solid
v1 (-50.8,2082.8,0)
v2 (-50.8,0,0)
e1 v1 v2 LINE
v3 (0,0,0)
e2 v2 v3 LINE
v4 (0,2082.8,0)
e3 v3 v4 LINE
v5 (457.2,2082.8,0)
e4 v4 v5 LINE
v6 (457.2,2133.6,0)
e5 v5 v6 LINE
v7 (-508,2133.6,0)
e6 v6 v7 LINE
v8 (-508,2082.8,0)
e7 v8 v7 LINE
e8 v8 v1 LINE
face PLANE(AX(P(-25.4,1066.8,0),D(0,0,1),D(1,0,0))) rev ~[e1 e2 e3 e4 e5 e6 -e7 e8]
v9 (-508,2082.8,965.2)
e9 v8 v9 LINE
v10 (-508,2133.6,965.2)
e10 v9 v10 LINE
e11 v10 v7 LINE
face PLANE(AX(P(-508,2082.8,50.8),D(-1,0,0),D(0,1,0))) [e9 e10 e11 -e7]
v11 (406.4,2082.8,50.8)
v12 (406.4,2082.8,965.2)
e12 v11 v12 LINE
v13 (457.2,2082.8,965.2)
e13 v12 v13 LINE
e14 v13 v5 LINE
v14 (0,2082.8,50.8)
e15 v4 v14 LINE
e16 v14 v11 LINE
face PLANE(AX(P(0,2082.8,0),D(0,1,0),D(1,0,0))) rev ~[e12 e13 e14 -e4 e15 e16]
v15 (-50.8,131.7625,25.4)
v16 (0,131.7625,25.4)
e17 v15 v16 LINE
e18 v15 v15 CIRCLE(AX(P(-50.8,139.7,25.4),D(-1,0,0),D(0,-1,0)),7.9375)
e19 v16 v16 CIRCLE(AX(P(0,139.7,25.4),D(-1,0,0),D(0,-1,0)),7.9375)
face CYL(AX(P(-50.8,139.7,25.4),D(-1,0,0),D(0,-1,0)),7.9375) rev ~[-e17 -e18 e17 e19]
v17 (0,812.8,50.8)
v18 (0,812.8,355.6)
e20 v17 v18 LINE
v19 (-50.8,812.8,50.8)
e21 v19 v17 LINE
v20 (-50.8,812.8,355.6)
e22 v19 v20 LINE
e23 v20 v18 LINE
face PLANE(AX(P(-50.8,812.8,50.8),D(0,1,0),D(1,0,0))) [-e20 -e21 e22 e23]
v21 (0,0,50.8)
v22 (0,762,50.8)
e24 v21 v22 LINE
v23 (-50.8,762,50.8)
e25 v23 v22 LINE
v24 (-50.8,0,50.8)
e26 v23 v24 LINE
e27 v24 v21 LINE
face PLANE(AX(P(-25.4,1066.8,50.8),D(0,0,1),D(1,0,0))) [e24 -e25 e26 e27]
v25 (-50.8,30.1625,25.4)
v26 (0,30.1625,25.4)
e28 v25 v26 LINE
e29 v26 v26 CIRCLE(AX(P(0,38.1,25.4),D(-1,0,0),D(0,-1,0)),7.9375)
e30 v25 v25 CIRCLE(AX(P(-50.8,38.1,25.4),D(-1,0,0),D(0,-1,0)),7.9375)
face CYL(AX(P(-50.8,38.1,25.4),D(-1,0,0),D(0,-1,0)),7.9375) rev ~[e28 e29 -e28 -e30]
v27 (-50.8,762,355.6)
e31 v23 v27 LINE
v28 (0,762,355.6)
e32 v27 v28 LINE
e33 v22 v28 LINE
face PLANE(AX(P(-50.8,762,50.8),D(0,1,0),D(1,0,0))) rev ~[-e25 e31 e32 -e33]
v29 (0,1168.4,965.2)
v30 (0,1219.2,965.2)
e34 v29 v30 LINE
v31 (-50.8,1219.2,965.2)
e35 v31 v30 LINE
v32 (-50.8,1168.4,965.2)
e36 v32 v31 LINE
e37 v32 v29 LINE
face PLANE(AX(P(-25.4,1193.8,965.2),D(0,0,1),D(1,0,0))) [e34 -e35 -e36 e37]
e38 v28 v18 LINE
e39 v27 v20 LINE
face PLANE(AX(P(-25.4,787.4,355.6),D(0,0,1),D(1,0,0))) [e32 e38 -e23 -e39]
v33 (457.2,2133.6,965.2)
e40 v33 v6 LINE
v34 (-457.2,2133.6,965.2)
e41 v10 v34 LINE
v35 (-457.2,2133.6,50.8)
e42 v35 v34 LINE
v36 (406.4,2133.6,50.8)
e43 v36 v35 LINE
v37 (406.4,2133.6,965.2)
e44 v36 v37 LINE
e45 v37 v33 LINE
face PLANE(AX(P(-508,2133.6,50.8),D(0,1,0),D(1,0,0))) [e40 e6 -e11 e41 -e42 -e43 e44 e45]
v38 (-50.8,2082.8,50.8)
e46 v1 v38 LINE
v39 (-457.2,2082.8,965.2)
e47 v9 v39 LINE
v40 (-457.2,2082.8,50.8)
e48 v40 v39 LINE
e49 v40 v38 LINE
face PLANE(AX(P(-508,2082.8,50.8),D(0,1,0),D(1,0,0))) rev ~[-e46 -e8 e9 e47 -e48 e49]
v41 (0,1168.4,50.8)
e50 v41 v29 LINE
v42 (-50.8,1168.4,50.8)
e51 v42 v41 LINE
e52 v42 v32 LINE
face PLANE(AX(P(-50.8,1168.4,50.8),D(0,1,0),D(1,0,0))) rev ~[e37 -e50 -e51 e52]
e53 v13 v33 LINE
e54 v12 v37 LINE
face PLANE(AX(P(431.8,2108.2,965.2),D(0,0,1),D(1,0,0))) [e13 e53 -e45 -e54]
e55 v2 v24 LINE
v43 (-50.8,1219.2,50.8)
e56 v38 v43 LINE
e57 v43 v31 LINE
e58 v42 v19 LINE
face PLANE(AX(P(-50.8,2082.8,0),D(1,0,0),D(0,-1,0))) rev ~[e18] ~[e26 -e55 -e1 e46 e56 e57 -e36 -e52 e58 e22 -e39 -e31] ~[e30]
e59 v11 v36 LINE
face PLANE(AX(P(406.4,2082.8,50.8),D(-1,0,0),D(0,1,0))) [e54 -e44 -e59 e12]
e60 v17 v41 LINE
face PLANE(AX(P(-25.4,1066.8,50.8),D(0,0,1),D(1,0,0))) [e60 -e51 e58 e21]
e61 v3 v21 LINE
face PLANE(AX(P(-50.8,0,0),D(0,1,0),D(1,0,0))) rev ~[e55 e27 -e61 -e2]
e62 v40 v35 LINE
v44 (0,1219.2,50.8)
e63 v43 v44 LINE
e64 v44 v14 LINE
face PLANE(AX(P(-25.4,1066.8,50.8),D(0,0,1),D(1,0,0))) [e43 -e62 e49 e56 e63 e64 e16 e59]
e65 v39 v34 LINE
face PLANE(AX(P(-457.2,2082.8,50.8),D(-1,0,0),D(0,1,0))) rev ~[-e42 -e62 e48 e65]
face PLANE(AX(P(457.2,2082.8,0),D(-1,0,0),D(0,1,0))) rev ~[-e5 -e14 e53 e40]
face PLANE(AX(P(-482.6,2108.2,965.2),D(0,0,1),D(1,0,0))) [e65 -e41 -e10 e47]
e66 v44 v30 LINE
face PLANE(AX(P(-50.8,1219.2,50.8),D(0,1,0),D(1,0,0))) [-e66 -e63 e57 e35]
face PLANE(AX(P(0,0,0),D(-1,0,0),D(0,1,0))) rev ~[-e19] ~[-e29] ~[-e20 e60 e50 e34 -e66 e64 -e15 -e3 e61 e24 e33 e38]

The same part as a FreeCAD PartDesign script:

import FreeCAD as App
import Part
import Sketcher

V = App.Vector
Q = App.Units.Quantity


def add_polygon(sketch, points):
    """Adds a closed chain of lines whose ends are joined by coincident constraints."""
    first, n = sketch.GeometryCount, len(points)
    for a, b in zip(points, points[1:] + points[:1]):
        sketch.addGeometry(Part.LineSegment(App.Vector(*a, 0), App.Vector(*b, 0)), False)
    for i in range(n):
        sketch.addConstraint(Sketcher.Constraint("Coincident", first + i, 2, first + (i + 1) % n, 1))

doc = App.newDocument("Part")
body = doc.addObject("PartDesign::Body", "Body")

sketch1 = body.newObject("Sketcher::SketchObject", "Sketch")
sketch1.AttachmentSupport = (doc.getObject("XY_Plane"), [""])
sketch1.MapMode = "FlatFace"
add_polygon(sketch1, [(-51, 2083), (-51, 0), (0, 0), (0, 2083), (457, 2083), (457, 2134), (-508, 2134), (-508, 2083)])
sketch1.addConstraint(Sketcher.Constraint("Vertical", 0))
sketch1.addConstraint(Sketcher.Constraint("Horizontal", 1))
sketch1.addConstraint(Sketcher.Constraint("Vertical", 2))
sketch1.addConstraint(Sketcher.Constraint("Horizontal", 3))
sketch1.addConstraint(Sketcher.Constraint("Vertical", 4))
sketch1.addConstraint(Sketcher.Constraint("Horizontal", 5))
sketch1.addConstraint(Sketcher.Constraint("Vertical", 6))
sketch1.addConstraint(Sketcher.Constraint("Horizontal", 7))
sketch1.addConstraint(Sketcher.Constraint("Coincident", 1, 2, -1, 1))
sketch1.addConstraint(Sketcher.Constraint("Horizontal", 3, 2, 6, 2))
sketch1.addConstraint(Sketcher.Constraint("Equal", 3, 7))
sketch1.addConstraint(Sketcher.Constraint("Equal", 1, 4))
sketch1.addConstraint(Sketcher.Constraint("DistanceX", 1, 1, 1, 2, Q("2 in")))
sketch1.addConstraint(Sketcher.Constraint("DistanceX", 3, 1, 3, 2, Q("18 in")))
sketch1.addConstraint(Sketcher.Constraint("DistanceY", 0, 2, 0, 1, Q("82 in")))
pad1 = body.newObject("PartDesign::Pad", "Pad")
pad1.Profile = sketch1
pad1.Length = Q("2 in")

sketch2 = body.newObject("Sketcher::SketchObject", "Sketch001")
sketch2.AttachmentSupport = (doc.getObject("XY_Plane"), [""])
sketch2.MapMode = "FlatFace"
sketch2.AttachmentOffset = App.Placement(V(0, 0, 2 * 25.4), App.Rotation())
add_polygon(sketch2, [(-508, 2134), (-508, 2083), (-457, 2083), (-457, 2134)])
add_polygon(sketch2, [(406, 2134), (406, 2083), (457, 2083), (457, 2134)])
sketch2.addConstraint(Sketcher.Constraint("Vertical", 0))
sketch2.addConstraint(Sketcher.Constraint("Horizontal", 1))
sketch2.addConstraint(Sketcher.Constraint("Vertical", 2))
sketch2.addConstraint(Sketcher.Constraint("Horizontal", 3))
sketch2.addConstraint(Sketcher.Constraint("Vertical", 4))
sketch2.addConstraint(Sketcher.Constraint("Horizontal", 5))
sketch2.addConstraint(Sketcher.Constraint("Vertical", 6))
sketch2.addConstraint(Sketcher.Constraint("Horizontal", 7))
sketch2.addConstraint(Sketcher.Constraint("Symmetric", 1, 2, 5, 2, -2))
sketch2.addConstraint(Sketcher.Constraint("Horizontal", 3, 2, 6, 2))
sketch2.addConstraint(Sketcher.Constraint("Equal", 3, 5))
sketch2.addConstraint(Sketcher.Constraint("Equal", 7, 0))
sketch2.addConstraint(Sketcher.Constraint("DistanceX", 1, 1, 1, 2, Q("2 in")))
sketch2.addConstraint(Sketcher.Constraint("DistanceX", 0, 2, -1, 1, Q("20 in")))
sketch2.addConstraint(Sketcher.Constraint("DistanceY", -1, 1, 0, 2, Q("82 in")))
pad2 = body.newObject("PartDesign::Pad", "Pad001")
pad2.Profile = sketch2
pad2.Length = Q("36 in")

sketch3 = body.newObject("Sketcher::SketchObject", "Sketch002")
sketch3.AttachmentSupport = (doc.getObject("XY_Plane"), [""])
sketch3.MapMode = "FlatFace"
sketch3.AttachmentOffset = App.Placement(V(0, 0, 2 * 25.4), App.Rotation())
add_polygon(sketch3, [(-51, 1219), (-51, 1168), (0, 1168), (0, 1219)])
sketch3.addConstraint(Sketcher.Constraint("Vertical", 0))
sketch3.addConstraint(Sketcher.Constraint("Horizontal", 1))
sketch3.addConstraint(Sketcher.Constraint("Vertical", 2))
sketch3.addConstraint(Sketcher.Constraint("Horizontal", 3))
sketch3.addConstraint(Sketcher.Constraint("PointOnObject", 1, 2, -2))
sketch3.addConstraint(Sketcher.Constraint("Equal", 3, 0))
sketch3.addConstraint(Sketcher.Constraint("DistanceX", 1, 1, 1, 2, Q("2 in")))
sketch3.addConstraint(Sketcher.Constraint("DistanceY", -1, 1, 0, 2, Q("46 in")))
pad3 = body.newObject("PartDesign::Pad", "Pad002")
pad3.Profile = sketch3
pad3.Length = Q("36 in")

sketch4 = body.newObject("Sketcher::SketchObject", "Sketch003")
sketch4.AttachmentSupport = (doc.getObject("XY_Plane"), [""])
sketch4.MapMode = "FlatFace"
sketch4.AttachmentOffset = App.Placement(V(0, 0, 2 * 25.4), App.Rotation())
add_polygon(sketch4, [(-51, 813), (-51, 762), (0, 762), (0, 813)])
sketch4.addConstraint(Sketcher.Constraint("Vertical", 0))
sketch4.addConstraint(Sketcher.Constraint("Horizontal", 1))
sketch4.addConstraint(Sketcher.Constraint("Vertical", 2))
sketch4.addConstraint(Sketcher.Constraint("Horizontal", 3))
sketch4.addConstraint(Sketcher.Constraint("PointOnObject", 1, 2, -2))
sketch4.addConstraint(Sketcher.Constraint("Equal", 3, 0))
sketch4.addConstraint(Sketcher.Constraint("DistanceX", 1, 1, 1, 2, Q("2 in")))
sketch4.addConstraint(Sketcher.Constraint("DistanceY", -1, 1, 0, 2, Q("30 in")))
pad4 = body.newObject("PartDesign::Pad", "Pad003")
pad4.Profile = sketch4
pad4.Length = Q("12 in")

sketch5 = body.newObject("Sketcher::SketchObject", "Sketch004")
sketch5.AttachmentSupport = (doc.getObject("YZ_Plane"), [""])
sketch5.MapMode = "FlatFace"
sketch5.AttachmentOffset = App.Placement(V(0, 0, -2 * 25.4), App.Rotation())
sketch5.addGeometry(Part.Circle(V(140, 25, 0), V(0, 0, 1), 8), False)
sketch5.addGeometry(Part.Circle(V(38, 25, 0), V(0, 0, 1), 8), False)
sketch5.addConstraint(Sketcher.Constraint("Equal", 0, 1))
sketch5.addConstraint(Sketcher.Constraint("Horizontal", 0, 3, 1, 3))
sketch5.addConstraint(Sketcher.Constraint("Diameter", 0, Q("0.625 in")))
sketch5.addConstraint(Sketcher.Constraint("DistanceY", -1, 1, 0, 3, Q("1 in")))
sketch5.addConstraint(Sketcher.Constraint("DistanceX", 1, 3, 0, 3, Q("4 in")))
sketch5.addConstraint(Sketcher.Constraint("DistanceX", -1, 1, 0, 3, Q("5.5 in")))
pocket1 = body.newObject("PartDesign::Pocket", "Pocket")
pocket1.Profile = sketch5
pocket1.Length = Q("2 in")
pocket1.Reversed = True

doc.recompute()
